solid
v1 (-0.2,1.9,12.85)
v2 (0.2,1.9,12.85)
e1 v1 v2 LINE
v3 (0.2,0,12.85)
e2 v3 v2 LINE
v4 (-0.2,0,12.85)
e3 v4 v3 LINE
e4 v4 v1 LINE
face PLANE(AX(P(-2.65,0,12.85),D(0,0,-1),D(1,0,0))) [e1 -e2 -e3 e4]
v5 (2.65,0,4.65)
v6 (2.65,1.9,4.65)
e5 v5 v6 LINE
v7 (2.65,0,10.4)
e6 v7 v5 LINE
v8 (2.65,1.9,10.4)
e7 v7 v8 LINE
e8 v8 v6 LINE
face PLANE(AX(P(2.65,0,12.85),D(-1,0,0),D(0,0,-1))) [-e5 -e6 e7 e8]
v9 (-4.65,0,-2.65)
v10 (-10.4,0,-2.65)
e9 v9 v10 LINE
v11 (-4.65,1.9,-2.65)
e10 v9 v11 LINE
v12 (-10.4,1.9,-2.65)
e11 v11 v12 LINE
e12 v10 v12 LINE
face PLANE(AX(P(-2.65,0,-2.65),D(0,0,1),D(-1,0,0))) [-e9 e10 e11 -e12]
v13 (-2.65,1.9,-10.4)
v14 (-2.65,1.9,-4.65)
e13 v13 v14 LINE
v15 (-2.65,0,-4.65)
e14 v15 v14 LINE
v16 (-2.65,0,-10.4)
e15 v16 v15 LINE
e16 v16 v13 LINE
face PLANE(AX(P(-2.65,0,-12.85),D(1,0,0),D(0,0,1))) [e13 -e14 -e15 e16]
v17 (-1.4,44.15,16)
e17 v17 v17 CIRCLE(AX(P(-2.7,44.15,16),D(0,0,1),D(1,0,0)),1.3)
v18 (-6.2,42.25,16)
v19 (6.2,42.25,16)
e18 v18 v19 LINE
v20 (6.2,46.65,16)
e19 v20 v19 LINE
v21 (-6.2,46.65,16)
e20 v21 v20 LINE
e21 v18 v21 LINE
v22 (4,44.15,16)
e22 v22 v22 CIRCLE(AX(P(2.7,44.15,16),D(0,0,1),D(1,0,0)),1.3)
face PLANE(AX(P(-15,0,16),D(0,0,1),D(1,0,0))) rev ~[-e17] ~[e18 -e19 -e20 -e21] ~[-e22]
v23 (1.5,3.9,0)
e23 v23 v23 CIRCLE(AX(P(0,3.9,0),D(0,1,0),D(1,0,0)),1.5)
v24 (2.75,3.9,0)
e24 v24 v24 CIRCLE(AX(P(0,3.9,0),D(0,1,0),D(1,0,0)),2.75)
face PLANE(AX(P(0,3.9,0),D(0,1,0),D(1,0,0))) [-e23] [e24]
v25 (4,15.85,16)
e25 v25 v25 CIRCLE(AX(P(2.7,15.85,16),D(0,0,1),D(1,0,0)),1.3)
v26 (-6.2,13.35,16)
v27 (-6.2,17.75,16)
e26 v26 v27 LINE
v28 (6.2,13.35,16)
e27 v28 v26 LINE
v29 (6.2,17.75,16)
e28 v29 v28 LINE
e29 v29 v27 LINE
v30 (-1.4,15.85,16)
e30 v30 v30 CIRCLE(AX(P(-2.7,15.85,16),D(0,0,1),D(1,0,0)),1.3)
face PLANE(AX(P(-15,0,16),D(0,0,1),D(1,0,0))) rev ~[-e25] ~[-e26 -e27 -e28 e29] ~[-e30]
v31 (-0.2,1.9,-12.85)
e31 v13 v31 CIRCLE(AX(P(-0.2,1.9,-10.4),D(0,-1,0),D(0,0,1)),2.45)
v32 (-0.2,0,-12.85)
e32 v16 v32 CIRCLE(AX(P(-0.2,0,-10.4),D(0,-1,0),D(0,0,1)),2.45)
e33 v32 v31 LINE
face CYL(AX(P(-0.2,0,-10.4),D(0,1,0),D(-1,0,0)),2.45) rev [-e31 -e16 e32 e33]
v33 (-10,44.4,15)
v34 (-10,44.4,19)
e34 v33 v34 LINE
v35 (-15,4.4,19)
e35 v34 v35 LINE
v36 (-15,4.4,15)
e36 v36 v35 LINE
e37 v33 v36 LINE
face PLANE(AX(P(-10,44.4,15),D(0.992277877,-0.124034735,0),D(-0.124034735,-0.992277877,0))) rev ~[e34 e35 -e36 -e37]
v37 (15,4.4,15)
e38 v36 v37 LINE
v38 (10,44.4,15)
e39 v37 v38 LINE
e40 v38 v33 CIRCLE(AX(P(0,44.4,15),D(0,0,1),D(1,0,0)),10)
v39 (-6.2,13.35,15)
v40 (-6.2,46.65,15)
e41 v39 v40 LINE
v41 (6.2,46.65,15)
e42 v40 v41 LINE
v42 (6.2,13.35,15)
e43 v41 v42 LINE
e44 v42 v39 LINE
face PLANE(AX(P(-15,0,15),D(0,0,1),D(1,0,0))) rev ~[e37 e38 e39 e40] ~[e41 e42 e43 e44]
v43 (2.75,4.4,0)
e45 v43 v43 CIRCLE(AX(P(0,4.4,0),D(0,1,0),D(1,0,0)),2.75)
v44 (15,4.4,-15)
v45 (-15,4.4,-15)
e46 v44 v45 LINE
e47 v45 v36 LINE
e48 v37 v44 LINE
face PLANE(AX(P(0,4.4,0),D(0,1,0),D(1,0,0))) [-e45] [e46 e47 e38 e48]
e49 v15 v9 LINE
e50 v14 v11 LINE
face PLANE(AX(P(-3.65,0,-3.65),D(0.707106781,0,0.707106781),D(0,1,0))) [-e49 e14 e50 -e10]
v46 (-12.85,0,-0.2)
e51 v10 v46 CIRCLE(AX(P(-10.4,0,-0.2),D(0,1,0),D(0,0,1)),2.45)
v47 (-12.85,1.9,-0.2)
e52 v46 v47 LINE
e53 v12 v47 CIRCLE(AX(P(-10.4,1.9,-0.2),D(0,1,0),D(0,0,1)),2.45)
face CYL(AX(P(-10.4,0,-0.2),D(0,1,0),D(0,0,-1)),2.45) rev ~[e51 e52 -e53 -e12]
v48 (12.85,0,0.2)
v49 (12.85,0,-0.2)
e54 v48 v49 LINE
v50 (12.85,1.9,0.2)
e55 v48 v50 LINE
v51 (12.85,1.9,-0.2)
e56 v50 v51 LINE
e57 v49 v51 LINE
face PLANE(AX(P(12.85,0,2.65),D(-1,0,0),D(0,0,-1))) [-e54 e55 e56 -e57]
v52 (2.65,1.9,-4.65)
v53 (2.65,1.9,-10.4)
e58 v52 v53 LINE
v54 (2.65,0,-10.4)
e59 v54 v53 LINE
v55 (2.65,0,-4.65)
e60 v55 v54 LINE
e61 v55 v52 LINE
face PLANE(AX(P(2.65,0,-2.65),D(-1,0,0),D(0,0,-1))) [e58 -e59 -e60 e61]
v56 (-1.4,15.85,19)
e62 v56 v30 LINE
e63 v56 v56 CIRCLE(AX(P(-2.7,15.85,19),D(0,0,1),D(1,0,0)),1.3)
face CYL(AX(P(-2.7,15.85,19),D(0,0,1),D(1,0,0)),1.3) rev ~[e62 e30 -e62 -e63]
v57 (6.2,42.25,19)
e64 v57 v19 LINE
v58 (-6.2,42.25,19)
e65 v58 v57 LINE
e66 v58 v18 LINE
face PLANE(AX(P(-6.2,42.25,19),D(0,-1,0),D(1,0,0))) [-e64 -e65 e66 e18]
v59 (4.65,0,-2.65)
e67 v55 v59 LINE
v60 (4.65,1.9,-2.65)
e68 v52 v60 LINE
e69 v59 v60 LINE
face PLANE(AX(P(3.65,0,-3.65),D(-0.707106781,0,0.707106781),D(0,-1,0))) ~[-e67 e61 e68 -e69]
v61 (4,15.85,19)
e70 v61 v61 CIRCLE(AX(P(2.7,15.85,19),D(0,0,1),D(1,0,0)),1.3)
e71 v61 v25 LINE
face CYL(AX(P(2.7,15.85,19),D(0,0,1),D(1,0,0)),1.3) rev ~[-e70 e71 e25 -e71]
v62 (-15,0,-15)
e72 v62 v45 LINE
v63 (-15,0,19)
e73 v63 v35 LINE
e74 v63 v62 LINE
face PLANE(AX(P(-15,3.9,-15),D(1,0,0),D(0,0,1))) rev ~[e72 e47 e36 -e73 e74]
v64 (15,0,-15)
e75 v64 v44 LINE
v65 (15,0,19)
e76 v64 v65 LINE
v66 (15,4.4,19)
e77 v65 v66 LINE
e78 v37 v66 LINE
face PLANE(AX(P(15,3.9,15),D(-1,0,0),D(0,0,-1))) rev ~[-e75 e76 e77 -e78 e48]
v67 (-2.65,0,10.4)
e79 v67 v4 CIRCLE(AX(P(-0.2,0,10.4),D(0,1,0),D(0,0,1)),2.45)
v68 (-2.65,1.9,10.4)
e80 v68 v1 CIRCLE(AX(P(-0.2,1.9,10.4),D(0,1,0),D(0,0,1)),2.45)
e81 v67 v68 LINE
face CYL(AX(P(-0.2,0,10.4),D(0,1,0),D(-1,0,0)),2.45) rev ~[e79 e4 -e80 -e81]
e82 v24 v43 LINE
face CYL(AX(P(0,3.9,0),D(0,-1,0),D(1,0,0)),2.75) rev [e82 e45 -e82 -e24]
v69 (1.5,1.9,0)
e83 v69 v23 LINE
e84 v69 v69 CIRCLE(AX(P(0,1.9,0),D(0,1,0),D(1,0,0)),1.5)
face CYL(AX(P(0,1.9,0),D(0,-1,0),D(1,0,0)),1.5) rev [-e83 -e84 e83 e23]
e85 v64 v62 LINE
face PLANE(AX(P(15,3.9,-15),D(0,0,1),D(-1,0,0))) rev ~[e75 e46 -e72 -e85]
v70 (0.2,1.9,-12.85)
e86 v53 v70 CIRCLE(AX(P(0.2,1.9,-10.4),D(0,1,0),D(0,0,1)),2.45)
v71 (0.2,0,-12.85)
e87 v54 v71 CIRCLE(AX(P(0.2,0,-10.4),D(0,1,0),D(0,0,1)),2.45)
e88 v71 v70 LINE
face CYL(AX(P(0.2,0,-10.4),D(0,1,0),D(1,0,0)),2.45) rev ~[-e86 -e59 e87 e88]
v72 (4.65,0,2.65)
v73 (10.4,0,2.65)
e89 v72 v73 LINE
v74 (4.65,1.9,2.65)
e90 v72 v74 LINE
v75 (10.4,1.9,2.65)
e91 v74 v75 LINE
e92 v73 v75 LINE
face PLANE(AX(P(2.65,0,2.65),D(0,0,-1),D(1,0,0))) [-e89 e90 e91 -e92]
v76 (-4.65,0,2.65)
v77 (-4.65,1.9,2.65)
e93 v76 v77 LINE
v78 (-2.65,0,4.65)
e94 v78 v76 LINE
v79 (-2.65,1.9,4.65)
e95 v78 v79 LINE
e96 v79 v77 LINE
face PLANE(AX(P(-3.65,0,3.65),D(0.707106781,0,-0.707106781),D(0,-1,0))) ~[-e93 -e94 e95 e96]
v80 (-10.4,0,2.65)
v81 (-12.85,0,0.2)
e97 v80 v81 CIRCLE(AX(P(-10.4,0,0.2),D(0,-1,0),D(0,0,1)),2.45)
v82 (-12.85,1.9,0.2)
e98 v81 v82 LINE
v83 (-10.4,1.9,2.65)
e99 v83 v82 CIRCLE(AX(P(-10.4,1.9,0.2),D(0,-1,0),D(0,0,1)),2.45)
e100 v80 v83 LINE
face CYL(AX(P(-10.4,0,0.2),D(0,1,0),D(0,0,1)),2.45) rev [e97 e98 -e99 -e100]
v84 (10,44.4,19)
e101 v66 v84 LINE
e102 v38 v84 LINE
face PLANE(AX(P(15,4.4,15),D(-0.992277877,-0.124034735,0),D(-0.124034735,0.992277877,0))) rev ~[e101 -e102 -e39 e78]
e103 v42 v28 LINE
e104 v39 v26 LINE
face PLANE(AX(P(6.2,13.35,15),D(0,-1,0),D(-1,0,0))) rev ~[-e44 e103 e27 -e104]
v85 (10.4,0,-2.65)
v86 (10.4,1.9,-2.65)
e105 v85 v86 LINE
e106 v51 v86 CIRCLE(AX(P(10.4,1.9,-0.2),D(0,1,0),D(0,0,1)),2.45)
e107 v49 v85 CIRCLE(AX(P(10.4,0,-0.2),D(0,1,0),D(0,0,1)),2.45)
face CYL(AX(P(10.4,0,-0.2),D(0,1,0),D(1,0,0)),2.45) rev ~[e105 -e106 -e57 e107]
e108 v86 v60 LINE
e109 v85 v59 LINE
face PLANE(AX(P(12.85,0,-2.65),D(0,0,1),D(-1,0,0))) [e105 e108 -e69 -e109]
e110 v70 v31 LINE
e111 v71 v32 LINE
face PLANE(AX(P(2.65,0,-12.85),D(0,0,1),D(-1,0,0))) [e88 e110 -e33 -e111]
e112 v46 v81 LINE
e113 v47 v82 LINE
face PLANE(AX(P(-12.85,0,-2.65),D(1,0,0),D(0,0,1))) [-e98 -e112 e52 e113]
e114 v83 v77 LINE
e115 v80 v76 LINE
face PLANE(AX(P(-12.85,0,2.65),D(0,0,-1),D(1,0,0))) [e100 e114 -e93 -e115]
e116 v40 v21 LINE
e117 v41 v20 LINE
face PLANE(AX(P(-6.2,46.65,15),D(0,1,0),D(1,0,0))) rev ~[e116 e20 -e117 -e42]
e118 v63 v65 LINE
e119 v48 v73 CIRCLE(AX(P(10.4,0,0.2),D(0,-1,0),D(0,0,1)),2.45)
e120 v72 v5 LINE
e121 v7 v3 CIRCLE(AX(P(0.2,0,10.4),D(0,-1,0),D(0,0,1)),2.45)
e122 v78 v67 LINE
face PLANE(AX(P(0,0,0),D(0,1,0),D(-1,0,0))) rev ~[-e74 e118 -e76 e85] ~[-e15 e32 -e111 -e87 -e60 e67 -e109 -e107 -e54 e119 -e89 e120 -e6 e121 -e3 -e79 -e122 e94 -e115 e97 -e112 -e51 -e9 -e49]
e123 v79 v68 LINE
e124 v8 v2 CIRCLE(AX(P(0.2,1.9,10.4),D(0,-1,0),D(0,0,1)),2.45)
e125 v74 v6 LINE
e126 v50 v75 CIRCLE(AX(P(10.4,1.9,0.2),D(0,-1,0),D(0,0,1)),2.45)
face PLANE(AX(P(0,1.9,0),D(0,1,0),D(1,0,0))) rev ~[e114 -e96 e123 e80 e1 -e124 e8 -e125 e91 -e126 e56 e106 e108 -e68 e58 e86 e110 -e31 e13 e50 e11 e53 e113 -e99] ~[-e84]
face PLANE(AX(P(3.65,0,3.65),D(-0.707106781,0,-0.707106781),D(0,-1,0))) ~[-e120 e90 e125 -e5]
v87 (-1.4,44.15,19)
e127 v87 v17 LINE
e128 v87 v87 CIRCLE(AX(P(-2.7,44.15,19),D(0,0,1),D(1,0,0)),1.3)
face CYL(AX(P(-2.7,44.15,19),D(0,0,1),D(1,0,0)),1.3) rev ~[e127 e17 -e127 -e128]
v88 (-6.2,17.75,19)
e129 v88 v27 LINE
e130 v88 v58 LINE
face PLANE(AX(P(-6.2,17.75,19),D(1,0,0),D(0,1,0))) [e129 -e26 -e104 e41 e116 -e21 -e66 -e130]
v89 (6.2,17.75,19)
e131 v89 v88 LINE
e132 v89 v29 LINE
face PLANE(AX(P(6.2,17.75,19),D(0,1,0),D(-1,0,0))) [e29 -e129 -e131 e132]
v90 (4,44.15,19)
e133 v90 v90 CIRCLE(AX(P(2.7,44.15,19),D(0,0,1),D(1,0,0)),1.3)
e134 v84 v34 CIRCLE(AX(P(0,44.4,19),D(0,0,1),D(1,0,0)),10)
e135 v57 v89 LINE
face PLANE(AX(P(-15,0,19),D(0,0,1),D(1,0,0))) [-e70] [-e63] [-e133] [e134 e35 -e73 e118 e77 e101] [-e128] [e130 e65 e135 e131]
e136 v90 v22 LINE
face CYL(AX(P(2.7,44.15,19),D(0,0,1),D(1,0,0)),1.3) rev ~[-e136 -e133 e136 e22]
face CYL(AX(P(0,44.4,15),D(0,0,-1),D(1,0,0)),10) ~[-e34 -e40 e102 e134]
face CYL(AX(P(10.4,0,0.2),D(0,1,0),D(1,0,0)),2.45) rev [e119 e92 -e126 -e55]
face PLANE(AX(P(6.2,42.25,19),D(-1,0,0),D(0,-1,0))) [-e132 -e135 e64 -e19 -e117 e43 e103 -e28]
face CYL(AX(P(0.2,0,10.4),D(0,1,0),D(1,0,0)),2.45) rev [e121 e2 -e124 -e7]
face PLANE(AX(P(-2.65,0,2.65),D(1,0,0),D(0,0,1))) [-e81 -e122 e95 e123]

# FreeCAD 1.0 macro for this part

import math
import FreeCAD as App
import Part
import Sketcher
from FreeCAD import Vector


def edges_at(feature, points):
    """Names of the edges that pass closest to the given points."""
    edges = feature.Shape.Edges
    near = lambda p: min(range(len(edges)), key=lambda i: edges[i].distToShape(Part.Vertex(*p))[0])
    return sorted({f"Edge{near(p) + 1}" for p in points})


def add_polygon(sketch, points):
    """Adds a closed chain of lines whose ends are joined by coincident constraints."""
    first, n = sketch.GeometryCount, len(points)
    for a, b in zip(points, points[1:] + points[:1]):
        sketch.addGeometry(Part.LineSegment(App.Vector(*a, 0), App.Vector(*b, 0)), False)
    for i in range(n):
        sketch.addConstraint(Sketcher.Constraint("Coincident", first + i, 2, first + (i + 1) % n, 1))

doc = App.newDocument("Part")
body = doc.addObject("PartDesign::Body", "Body")

# Sketch on XZ plane
sketch1 = doc.addObject("Sketcher::SketchObject", "Sketch")
body.addObject(sketch1)
sketch1.AttachmentSupport = (doc.XZ_Plane, [""])
sketch1.MapMode = "FlatFace"
add_polygon(sketch1, [(15, 15), (15, -15), (-15, -15), (-15, 15)])  # lines 0-3
add_polygon(sketch1, [(3, -3), (13, -3), (13, 3), (3, 3), (3, 13), (-3, 13), (-3, 3), (-13, 3), (-13, -3), (-3, -3), (-3, -13), (3, -13)])  # lines 4-15
sketch1.addConstraint([
    Sketcher.Constraint("Vertical", 0),
    Sketcher.Constraint("Horizontal", 1),
    Sketcher.Constraint("Vertical", 2),
    Sketcher.Constraint("Horizontal", 3),
    Sketcher.Constraint("Horizontal", 4),
    Sketcher.Constraint("Vertical", 5),
    Sketcher.Constraint("Horizontal", 6),
    Sketcher.Constraint("Vertical", 7),
    Sketcher.Constraint("Horizontal", 8),
    Sketcher.Constraint("Vertical", 9),
    Sketcher.Constraint("Horizontal", 10),
    Sketcher.Constraint("Vertical", 11),
    Sketcher.Constraint("Horizontal", 12),
    Sketcher.Constraint("Vertical", 13),
    Sketcher.Constraint("Horizontal", 14),
    Sketcher.Constraint("Vertical", 15),
    Sketcher.Constraint("Symmetric", 0, 2, 2, 2, -1, 1),
    Sketcher.Constraint("Symmetric", 4, 2, 10, 2, -1, 1),
    Sketcher.Constraint("Symmetric", 6, 2, 12, 2, -1, 1),
    Sketcher.Constraint("Symmetric", 8, 2, 14, 2, -1, 1),
    Sketcher.Constraint("Symmetric", 6, 2, 9, 2, -2),
    Sketcher.Constraint("Equal", 3, 0),
    Sketcher.Constraint("Equal", 14, 5),
    Sketcher.Constraint("Equal", 12, 7),
    Sketcher.Constraint("DistanceX", 1, 2, 1, 1, 30.0),
    Sketcher.Constraint("DistanceX", 4, 1, 4, 2, 10.2),
    Sketcher.Constraint("DistanceX", 8, 2, 8, 1, 5.3),
])
pad1 = doc.addObject("PartDesign::Pad", "Pad")
body.addObject(pad1)
pad1.Profile = sketch1
pad1.Length = 1.9
pad1.Reversed = True

# Sketch on XZ plane
sketch2 = doc.addObject("Sketcher::SketchObject", "Sketch001")
body.addObject(sketch2)
sketch2.AttachmentSupport = (doc.XZ_Plane, [""])
sketch2.MapMode = "FlatFace"
sketch2.AttachmentOffset = App.Placement(Vector(0, 0, -1.9), App.Rotation())
add_polygon(sketch2, [(15, 15), (15, -15), (-15, -15), (-15, 15)])  # lines 0-3
sketch2.addGeometry(Part.Circle(Vector(0, 0, 0), Vector(0, 0, 1), 1.5), False)  # 4
sketch2.addConstraint([
    Sketcher.Constraint("Vertical", 0),
    Sketcher.Constraint("Horizontal", 1),
    Sketcher.Constraint("Vertical", 2),
    Sketcher.Constraint("Horizontal", 3),
    Sketcher.Constraint("Coincident", 4, 3, -1, 1),
    Sketcher.Constraint("Symmetric", 0, 2, 2, 2, -1, 1),
    Sketcher.Constraint("Equal", 3, 0),
    Sketcher.Constraint("Diameter", 4, 3.0),
    Sketcher.Constraint("DistanceX", 1, 2, 1, 1, 30.0),
])
pad2 = doc.addObject("PartDesign::Pad", "Pad001")
body.addObject(pad2)
pad2.Profile = sketch2
pad2.Length = 2
pad2.Reversed = True

# Sketch on XZ plane
sketch3 = doc.addObject("Sketcher::SketchObject", "Sketch002")
body.addObject(sketch3)
sketch3.AttachmentSupport = (doc.XZ_Plane, [""])
sketch3.MapMode = "FlatFace"
sketch3.AttachmentOffset = App.Placement(Vector(0, 0, -3.9), App.Rotation())
add_polygon(sketch3, [(15, 15), (15, -15), (-15, -15), (-15, 15)])  # lines 0-3
sketch3.addGeometry(Part.Circle(Vector(0, 0, 0), Vector(0, 0, 1), 2.8), False)  # 4
sketch3.addConstraint([
    Sketcher.Constraint("Vertical", 0),
    Sketcher.Constraint("Horizontal", 1),
    Sketcher.Constraint("Vertical", 2),
    Sketcher.Constraint("Horizontal", 3),
    Sketcher.Constraint("Coincident", 4, 3, -1, 1),
    Sketcher.Constraint("Symmetric", 0, 2, 2, 2, -1, 1),
    Sketcher.Constraint("Equal", 3, 0),
    Sketcher.Constraint("Diameter", 4, 5.5),
    Sketcher.Constraint("DistanceX", 1, 2, 1, 1, 30.0),
])
pad3 = doc.addObject("PartDesign::Pad", "Pad002")
body.addObject(pad3)
pad3.Profile = sketch3
pad3.Length = 0.5
pad3.Reversed = True
doc.recompute()

chamfer = doc.addObject("PartDesign::Chamfer", "Chamfer")
body.addObject(chamfer)
chamfer.Base = (pad3, edges_at(pad3, [(-2.65, 0.95, -2.65)]))
chamfer.Size = 2
doc.recompute()

fillet = doc.addObject("PartDesign::Fillet", "Fillet")
body.addObject(fillet)
fillet.Base = (chamfer, edges_at(chamfer, [(-12.85, 0.95, -2.65)]))
fillet.Radius = 2.45
doc.recompute()

fillet2 = doc.addObject("PartDesign::Fillet", "Fillet001")
body.addObject(fillet2)
fillet2.Base = (fillet, edges_at(fillet, [(-2.65, 0.95, -12.85)]))
fillet2.Radius = 2.45
doc.recompute()

chamfer2 = doc.addObject("PartDesign::Chamfer", "Chamfer001")
body.addObject(chamfer2)
chamfer2.Base = (fillet2, edges_at(fillet2, [(2.65, 0.95, -2.65)]))
chamfer2.Size = 2
doc.recompute()

chamfer3 = doc.addObject("PartDesign::Chamfer", "Chamfer002")
body.addObject(chamfer3)
chamfer3.Base = (chamfer2, edges_at(chamfer2, [(2.65, 0.95, 2.65)]))
chamfer3.Size = 2
doc.recompute()

fillet3 = doc.addObject("PartDesign::Fillet", "Fillet002")
body.addObject(fillet3)
fillet3.Base = (chamfer3, edges_at(chamfer3, [(12.85, 0.95, -2.65)]))
fillet3.Radius = 2.45
doc.recompute()

fillet4 = doc.addObject("PartDesign::Fillet", "Fillet003")
body.addObject(fillet4)
fillet4.Base = (fillet3, edges_at(fillet3, [(2.65, 0.95, -12.85)]))
fillet4.Radius = 2.45
doc.recompute()

fillet5 = doc.addObject("PartDesign::Fillet", "Fillet004")
body.addObject(fillet5)
fillet5.Base = (fillet4, edges_at(fillet4, [(12.85, 0.95, 2.65)]))
fillet5.Radius = 2.45
doc.recompute()

fillet6 = doc.addObject("PartDesign::Fillet", "Fillet005")
body.addObject(fillet6)
fillet6.Base = (fillet5, edges_at(fillet5, [(2.65, 0.95, 12.85)]))
fillet6.Radius = 2.45
doc.recompute()

chamfer4 = doc.addObject("PartDesign::Chamfer", "Chamfer003")
body.addObject(chamfer4)
chamfer4.Base = (fillet6, edges_at(fillet6, [(-2.65, 0.95, 2.65)]))
chamfer4.Size = 2
doc.recompute()

fillet7 = doc.addObject("PartDesign::Fillet", "Fillet006")
body.addObject(fillet7)
fillet7.Base = (chamfer4, edges_at(chamfer4, [(-2.65, 0.95, 12.85), (-12.85, 0.95, 2.65)]))
fillet7.Radius = 2.45

# Sketch on XY plane
sketch4 = doc.addObject("Sketcher::SketchObject", "Sketch003")
body.addObject(sketch4)
sketch4.AttachmentSupport = (doc.XY_Plane, [""])
sketch4.MapMode = "FlatFace"
sketch4.AttachmentOffset = App.Placement(Vector(0, 0, 15), App.Rotation())
sketch4.addGeometry([
    Part.LineSegment(Vector(-15, 4.4, 0), Vector(-15, 0, 0)),  # 0
    Part.LineSegment(Vector(-15, 0, 0), Vector(15, 0, 0)),  # 1
    Part.LineSegment(Vector(15, 0, 0), Vector(15, 4.4, 0)),  # 2
    Part.LineSegment(Vector(15, 4.4, 0), Vector(10, 44.4, 0)),  # 3
    Part.ArcOfCircle(Part.Circle(Vector(0, 44.4, 0), Vector(0, 0, 1), 10), math.radians(0), math.radians(180)),  # 4
    Part.LineSegment(Vector(-10, 44.4, 0), Vector(-15, 4.4, 0)),  # 5
], False)
sketch4.addConstraint([
    Sketcher.Constraint("Coincident", 0, 2, 1, 1),
    Sketcher.Constraint("Coincident", 1, 2, 2, 1),
    Sketcher.Constraint("Coincident", 2, 2, 3, 1),
    Sketcher.Constraint("Coincident", 3, 2, 4, 1),
    Sketcher.Constraint("Coincident", 4, 2, 5, 1),
    Sketcher.Constraint("Coincident", 5, 2, 0, 1),
    Sketcher.Constraint("Vertical", 0),
    Sketcher.Constraint("Horizontal", 1),
    Sketcher.Constraint("Vertical", 2),
    Sketcher.Constraint("Symmetric", 0, 2, 1, 2, -1, 1),
    Sketcher.Constraint("Symmetric", 3, 2, 4, 2, -2),
    Sketcher.Constraint("Horizontal", 4, 3, 3, 2),
    Sketcher.Constraint("Horizontal", 2, 2, 5, 2),
    Sketcher.Constraint("Radius", 4, 10.0),
    Sketcher.Constraint("DistanceY", 2, 2, 4, 3, 40.0),
    Sketcher.Constraint("DistanceX", 1, 1, 1, 2, 30.0),
    Sketcher.Constraint("DistanceY", 0, 2, 0, 1, 4.4),
])
pad4 = doc.addObject("PartDesign::Pad", "Pad003")
body.addObject(pad4)
pad4.Profile = sketch4
pad4.Length = 4

# Sketch on XY plane
sketch5 = doc.addObject("Sketcher::SketchObject", "Sketch004")
body.addObject(sketch5)
sketch5.AttachmentSupport = (doc.XY_Plane, [""])
sketch5.MapMode = "FlatFace"
sketch5.AttachmentOffset = App.Placement(Vector(0, 0, 19), App.Rotation())
sketch5.addGeometry(Part.Circle(Vector(-2.7, 44.1, 0), Vector(0, 0, 1), 1.3), False)  # 0
sketch5.addGeometry(Part.Circle(Vector(2.7, 44.1, 0), Vector(0, 0, 1), 1.3), False)  # 1
sketch5.addGeometry(Part.Circle(Vector(-2.7, 15.8, 0), Vector(0, 0, 1), 1.3), False)  # 2
sketch5.addGeometry(Part.Circle(Vector(2.7, 15.8, 0), Vector(0, 0, 1), 1.3), False)  # 3
add_polygon(sketch5, [(6.2, 42.2), (-6.2, 42.2), (-6.2, 17.8), (6.2, 17.8)])  # lines 4-7
sketch5.addConstraint([
    Sketcher.Constraint("Horizontal", 4),
    Sketcher.Constraint("Vertical", 5),
    Sketcher.Constraint("Horizontal", 6),
    Sketcher.Constraint("Vertical", 7),
    Sketcher.Constraint("Equal", 0, 1),
    Sketcher.Constraint("Equal", 1, 2),
    Sketcher.Constraint("Equal", 2, 3),
    Sketcher.Constraint("Symmetric", 0, 3, 1, 3, -2),
    Sketcher.Constraint("Symmetric", 2, 3, 3, 3, -2),
    Sketcher.Constraint("Vertical", 0, 3, 2, 3),
    Sketcher.Constraint("Diameter", 0, 2.6),
    Sketcher.Constraint("DistanceX", 4, 2, 4, 1, 12.4),
    Sketcher.Constraint("DistanceY", 5, 2, 5, 1, 24.5),
    Sketcher.Constraint("DistanceX", 0, 3, -1, 1, 2.7),
    Sketcher.Constraint("DistanceX", 4, 2, -1, 1, 6.2),
    Sketcher.Constraint("DistanceY", 2, 3, 0, 3, 28.3),
    Sketcher.Constraint("DistanceY", 4, 2, 0, 3, 1.9),
    Sketcher.Constraint("DistanceY", -1, 1, 0, 3, 44.15),
])
pocket1 = doc.addObject("PartDesign::Pocket", "Pocket")
body.addObject(pocket1)
pocket1.Profile = sketch5
pocket1.Type = "ThroughAll"

# Sketch on XY plane
sketch6 = doc.addObject("Sketcher::SketchObject", "Sketch005")
body.addObject(sketch6)
sketch6.AttachmentSupport = (doc.XY_Plane, [""])
sketch6.MapMode = "FlatFace"
sketch6.AttachmentOffset = App.Placement(Vector(0, 0, 15), App.Rotation())
add_polygon(sketch6, [(6.2, 17.8), (-6.2, 17.8), (-6.2, 13.3), (6.2, 13.3)])  # lines 0-3
sketch6.addGeometry(Part.Circle(Vector(-2.7, 15.8, 0), Vector(0, 0, 1), 1.3), False)  # 4
sketch6.addGeometry(Part.Circle(Vector(2.7, 15.8, 0), Vector(0, 0, 1), 1.3), False)  # 5
add_polygon(sketch6, [(-6.2, 46.6), (-6.2, 42.2), (6.2, 42.2), (6.2, 46.6)])  # lines 6-9
sketch6.addGeometry(Part.Circle(Vector(-2.7, 44.1, 0), Vector(0, 0, 1), 1.3), False)  # 10
sketch6.addGeometry(Part.Circle(Vector(2.7, 44.1, 0), Vector(0, 0, 1), 1.3), False)  # 11
sketch6.addConstraint([
    Sketcher.Constraint("Horizontal", 0),
    Sketcher.Constraint("Vertical", 1),
    Sketcher.Constraint("Horizontal", 2),
    Sketcher.Constraint("Vertical", 3),
    Sketcher.Constraint("Vertical", 6),
    Sketcher.Constraint("Horizontal", 7),
    Sketcher.Constraint("Vertical", 8),
    Sketcher.Constraint("Horizontal", 9),
    Sketcher.Constraint("Equal", 4, 5),
    Sketcher.Constraint("Equal", 5, 10),
    Sketcher.Constraint("Equal", 10, 11),
    Sketcher.Constraint("Symmetric", 4, 3, 5, 3, -2),
    Sketcher.Constraint("Symmetric", 10, 3, 11, 3, -2),
    Sketcher.Constraint("Vertical", 4, 3, 10, 3),
    Sketcher.Constraint("Vertical", 1, 2, 6, 2),
    Sketcher.Constraint("Vertical", 3, 2, 7, 2),
    Sketcher.Constraint("Equal", 3, 6),
    Sketcher.Constraint("DistanceY", 1, 2, 1, 1, 4.4),
    Sketcher.Constraint("Diameter", 4, 2.6),
    Sketcher.Constraint("DistanceX", 0, 2, 0, 1, 12.4),
    Sketcher.Constraint("DistanceX", 4, 3, -1, 1, 2.7),
    Sketcher.Constraint("DistanceX", 0, 2, -1, 1, 6.2),
    Sketcher.Constraint("DistanceY", 4, 3, 10, 3, 28.3),
    Sketcher.Constraint("DistanceY", 4, 3, 0, 2, 1.9),
    Sketcher.Constraint("DistanceY", 6, 2, 10, 3, 1.9),
    Sketcher.Constraint("DistanceY", -1, 1, 4, 3, 15.85),
])
pocket2 = doc.addObject("PartDesign::Pocket", "Pocket001")
body.addObject(pocket2)
pocket2.Profile = sketch6
pocket2.Length = 1
pocket2.Reversed = True

doc.recompute()
